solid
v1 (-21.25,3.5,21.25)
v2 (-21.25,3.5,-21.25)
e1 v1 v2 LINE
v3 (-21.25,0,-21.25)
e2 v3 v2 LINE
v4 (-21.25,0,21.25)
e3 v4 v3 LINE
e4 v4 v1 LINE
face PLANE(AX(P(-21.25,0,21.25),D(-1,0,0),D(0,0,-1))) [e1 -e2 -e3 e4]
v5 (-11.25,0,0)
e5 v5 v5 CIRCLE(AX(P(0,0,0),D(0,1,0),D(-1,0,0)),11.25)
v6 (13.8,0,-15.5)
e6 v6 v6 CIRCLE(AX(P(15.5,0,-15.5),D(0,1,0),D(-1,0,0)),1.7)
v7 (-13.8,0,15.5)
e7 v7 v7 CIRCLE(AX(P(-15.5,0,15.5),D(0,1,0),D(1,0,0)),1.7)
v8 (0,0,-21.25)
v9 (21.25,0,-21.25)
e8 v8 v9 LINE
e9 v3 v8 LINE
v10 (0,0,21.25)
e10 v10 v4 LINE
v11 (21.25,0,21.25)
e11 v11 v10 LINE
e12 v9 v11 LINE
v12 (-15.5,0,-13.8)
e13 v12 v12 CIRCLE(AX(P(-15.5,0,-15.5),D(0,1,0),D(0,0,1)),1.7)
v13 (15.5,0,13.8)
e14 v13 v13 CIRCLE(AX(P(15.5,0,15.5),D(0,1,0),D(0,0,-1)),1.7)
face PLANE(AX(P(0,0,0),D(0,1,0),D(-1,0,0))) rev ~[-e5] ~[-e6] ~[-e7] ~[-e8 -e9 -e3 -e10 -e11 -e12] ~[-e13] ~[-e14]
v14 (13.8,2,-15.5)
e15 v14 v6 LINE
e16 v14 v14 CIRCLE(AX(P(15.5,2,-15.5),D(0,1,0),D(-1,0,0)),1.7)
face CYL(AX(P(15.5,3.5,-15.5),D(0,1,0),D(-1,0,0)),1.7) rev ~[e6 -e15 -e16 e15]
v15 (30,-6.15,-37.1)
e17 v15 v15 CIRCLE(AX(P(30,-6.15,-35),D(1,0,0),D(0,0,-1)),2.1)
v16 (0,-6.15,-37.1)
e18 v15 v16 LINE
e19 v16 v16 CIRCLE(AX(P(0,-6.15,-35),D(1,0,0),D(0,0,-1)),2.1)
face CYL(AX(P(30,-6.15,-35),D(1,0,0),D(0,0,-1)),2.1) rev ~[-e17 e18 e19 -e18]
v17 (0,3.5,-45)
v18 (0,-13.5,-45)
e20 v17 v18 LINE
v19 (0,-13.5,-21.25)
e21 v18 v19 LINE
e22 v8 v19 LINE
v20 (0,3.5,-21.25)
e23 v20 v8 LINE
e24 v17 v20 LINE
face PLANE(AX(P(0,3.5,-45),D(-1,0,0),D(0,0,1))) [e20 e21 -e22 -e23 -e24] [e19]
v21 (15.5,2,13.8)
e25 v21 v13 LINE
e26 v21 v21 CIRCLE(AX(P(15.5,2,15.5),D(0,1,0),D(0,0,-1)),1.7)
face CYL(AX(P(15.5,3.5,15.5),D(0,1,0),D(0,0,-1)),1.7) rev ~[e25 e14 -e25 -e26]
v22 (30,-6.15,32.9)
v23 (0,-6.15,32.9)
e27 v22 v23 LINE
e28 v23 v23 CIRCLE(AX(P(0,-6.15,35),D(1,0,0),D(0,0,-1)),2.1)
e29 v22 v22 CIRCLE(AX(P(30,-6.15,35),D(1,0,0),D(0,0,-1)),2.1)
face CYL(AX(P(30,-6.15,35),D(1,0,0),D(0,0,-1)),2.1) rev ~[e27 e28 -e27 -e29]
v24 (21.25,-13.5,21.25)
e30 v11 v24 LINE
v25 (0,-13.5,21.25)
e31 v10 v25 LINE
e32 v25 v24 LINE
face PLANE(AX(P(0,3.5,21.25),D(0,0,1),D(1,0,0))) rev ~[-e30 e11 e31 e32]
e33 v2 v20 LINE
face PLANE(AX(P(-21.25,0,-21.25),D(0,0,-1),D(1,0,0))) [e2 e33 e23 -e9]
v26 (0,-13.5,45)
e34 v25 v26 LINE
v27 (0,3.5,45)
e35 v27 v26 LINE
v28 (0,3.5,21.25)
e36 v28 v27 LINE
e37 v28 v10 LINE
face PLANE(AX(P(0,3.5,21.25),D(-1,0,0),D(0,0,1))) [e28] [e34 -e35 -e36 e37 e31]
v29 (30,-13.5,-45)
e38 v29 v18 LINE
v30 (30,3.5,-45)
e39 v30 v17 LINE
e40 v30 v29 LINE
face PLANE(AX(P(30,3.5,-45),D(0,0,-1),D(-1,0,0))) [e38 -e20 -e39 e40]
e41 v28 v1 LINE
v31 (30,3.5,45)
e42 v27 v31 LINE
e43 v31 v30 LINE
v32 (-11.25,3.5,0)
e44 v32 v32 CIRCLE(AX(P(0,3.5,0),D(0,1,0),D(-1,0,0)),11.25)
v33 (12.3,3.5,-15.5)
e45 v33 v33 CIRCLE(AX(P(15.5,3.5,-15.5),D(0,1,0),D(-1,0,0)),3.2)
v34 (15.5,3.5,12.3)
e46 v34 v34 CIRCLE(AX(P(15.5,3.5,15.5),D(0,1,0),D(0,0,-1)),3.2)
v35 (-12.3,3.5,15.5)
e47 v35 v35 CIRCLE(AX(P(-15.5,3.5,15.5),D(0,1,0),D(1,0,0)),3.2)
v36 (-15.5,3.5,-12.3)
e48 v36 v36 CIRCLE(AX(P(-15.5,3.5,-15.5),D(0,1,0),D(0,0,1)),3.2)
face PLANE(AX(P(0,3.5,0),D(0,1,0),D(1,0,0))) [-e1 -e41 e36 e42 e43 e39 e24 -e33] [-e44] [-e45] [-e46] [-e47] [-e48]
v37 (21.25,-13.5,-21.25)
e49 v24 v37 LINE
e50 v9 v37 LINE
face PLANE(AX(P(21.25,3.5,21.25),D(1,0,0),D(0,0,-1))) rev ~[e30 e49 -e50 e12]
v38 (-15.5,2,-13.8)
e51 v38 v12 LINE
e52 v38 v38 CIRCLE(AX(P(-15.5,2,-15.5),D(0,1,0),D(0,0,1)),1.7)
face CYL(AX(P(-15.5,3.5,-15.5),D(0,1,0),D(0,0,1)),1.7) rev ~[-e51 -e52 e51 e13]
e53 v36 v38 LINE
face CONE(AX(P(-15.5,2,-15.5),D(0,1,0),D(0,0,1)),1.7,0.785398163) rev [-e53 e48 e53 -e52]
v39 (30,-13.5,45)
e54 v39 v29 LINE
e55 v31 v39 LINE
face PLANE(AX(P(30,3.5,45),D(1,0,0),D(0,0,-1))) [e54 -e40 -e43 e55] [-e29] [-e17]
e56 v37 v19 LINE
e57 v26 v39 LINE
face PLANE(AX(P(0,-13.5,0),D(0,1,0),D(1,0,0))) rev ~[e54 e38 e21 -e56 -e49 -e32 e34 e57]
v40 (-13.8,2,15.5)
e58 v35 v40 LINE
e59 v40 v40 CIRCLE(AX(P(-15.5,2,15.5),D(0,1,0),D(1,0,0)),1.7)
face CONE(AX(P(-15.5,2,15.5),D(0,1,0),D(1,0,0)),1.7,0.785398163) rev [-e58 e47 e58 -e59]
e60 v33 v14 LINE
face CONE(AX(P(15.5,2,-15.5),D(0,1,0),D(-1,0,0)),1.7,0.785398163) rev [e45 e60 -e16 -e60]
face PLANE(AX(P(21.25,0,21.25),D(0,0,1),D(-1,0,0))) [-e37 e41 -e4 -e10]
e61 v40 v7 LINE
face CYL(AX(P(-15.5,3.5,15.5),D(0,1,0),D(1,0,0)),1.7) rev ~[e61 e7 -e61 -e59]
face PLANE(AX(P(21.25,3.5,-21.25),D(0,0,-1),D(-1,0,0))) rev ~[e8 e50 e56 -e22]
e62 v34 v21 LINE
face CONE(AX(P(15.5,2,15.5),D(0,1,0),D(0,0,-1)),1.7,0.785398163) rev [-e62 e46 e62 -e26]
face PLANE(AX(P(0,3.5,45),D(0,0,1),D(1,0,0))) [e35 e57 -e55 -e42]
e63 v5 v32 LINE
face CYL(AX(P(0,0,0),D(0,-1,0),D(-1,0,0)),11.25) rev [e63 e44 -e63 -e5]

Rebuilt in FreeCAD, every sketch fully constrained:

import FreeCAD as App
import Part
import Sketcher
from FreeCAD import Vector


def edges_at(feature, points):
    """Names of the edges that pass closest to the given points."""
    edges = feature.Shape.Edges
    near = lambda p: min(range(len(edges)), key=lambda i: edges[i].distToShape(Part.Vertex(*p))[0])
    return sorted({f"Edge{near(p) + 1}" for p in points})


def add_polygon(sketch, points):
    """Adds a closed chain of lines whose ends are joined by coincident constraints."""
    first, n = sketch.GeometryCount, len(points)
    for a, b in zip(points, points[1:] + points[:1]):
        sketch.addGeometry(Part.LineSegment(App.Vector(*a, 0), App.Vector(*b, 0)), False)
    for i in range(n):
        sketch.addConstraint(Sketcher.Constraint("Coincident", first + i, 2, first + (i + 1) % n, 1))

doc = App.newDocument("Part")
body = doc.addObject("PartDesign::Body", "Body")

# Sketch on XZ plane
sketch1 = body.newObject("Sketcher::SketchObject", "Sketch")
sketch1.AttachmentSupport = (doc.getObject("XZ_Plane"), [""])
sketch1.MapMode = "FlatFace"
add_polygon(sketch1, [(-21, 21), (21, 21), (21, -21), (-21, -21)])  # lines 0-3
sketch1.addGeometry(Part.Circle(Vector(0, 0, 0), Vector(0, 0, 1), 11), False)  # 4
sketch1.addConstraint([
    Sketcher.Constraint("Horizontal", 0),
    Sketcher.Constraint("Vertical", 1),
    Sketcher.Constraint("Horizontal", 2),
    Sketcher.Constraint("Vertical", 3),
    Sketcher.Constraint("Coincident", 4, 3, -1, 1),
    Sketcher.Constraint("Symmetric", 0, 2, 2, 2, -1, 1),
    Sketcher.Constraint("Equal", 2, 1),
    Sketcher.Constraint("Diameter", 4, 22.5),
    Sketcher.Constraint("DistanceX", 0, 1, 0, 2, 42.5),
])
pad1 = body.newObject("PartDesign::Pad", "Pad")
pad1.Profile = sketch1
pad1.Length = 3.5
pad1.Reversed = True

# Sketch on XZ plane
sketch2 = body.newObject("Sketcher::SketchObject", "Sketch001")
sketch2.AttachmentSupport = (doc.getObject("XZ_Plane"), [""])
sketch2.MapMode = "FlatFace"
sketch2.AttachmentOffset = App.Placement(Vector(0, 0, -3.5), App.Rotation())
sketch2.addGeometry(Part.Circle(Vector(-15.5, 15.5, 0), Vector(0, 0, 1), 1.7), False)
sketch2.addConstraint([
    Sketcher.Constraint("Diameter", 0, 3.4),
    Sketcher.Constraint("DistanceX", 0, 3, -1, 1, 15.5),
    Sketcher.Constraint("DistanceY", -1, 1, 0, 3, 15.5),
])
pocket1 = body.newObject("PartDesign::Pocket", "Pocket")
pocket1.Profile = sketch2
pocket1.Type = "ThroughAll"
pocket1.Reversed = True
doc.recompute()

chamfer = body.newObject("PartDesign::Chamfer", "Chamfer")
chamfer.Base = (pocket1, edges_at(pocket1, [(-17.2, 3.5, 15.5)]))
chamfer.Size = 1.5
doc.recompute()

polarpattern = body.newObject("PartDesign::PolarPattern", "PolarPattern")
polarpattern.Originals = [pocket1, chamfer]
polarpattern.Axis = (doc.getObject("Y_Axis"), [""])
polarpattern.Angle = 360
polarpattern.Occurrences = 4
body.Tip = polarpattern

# Sketch on XZ plane
sketch3 = body.newObject("Sketcher::SketchObject", "Sketch002")
sketch3.AttachmentSupport = (doc.getObject("XZ_Plane"), [""])
sketch3.MapMode = "FlatFace"
sketch3.AttachmentOffset = App.Placement(Vector(0, 0, -3.5), App.Rotation())
add_polygon(sketch3, [(0, -21), (21, -21), (21, 21), (0, 21), (0, 45), (30, 45), (30, -45), (0, -45)])  # lines 0-7
sketch3.addConstraint([
    Sketcher.Constraint("Horizontal", 0),
    Sketcher.Constraint("Vertical", 1),
    Sketcher.Constraint("Horizontal", 2),
    Sketcher.Constraint("Vertical", 3),
    Sketcher.Constraint("Horizontal", 4),
    Sketcher.Constraint("Vertical", 5),
    Sketcher.Constraint("Horizontal", 6),
    Sketcher.Constraint("Vertical", 7),
    Sketcher.Constraint("Symmetric", 3, 2, 6, 2, -1, 1),
    Sketcher.Constraint("Symmetric", 2, 2, 7, 2, -1),
    Sketcher.Constraint("DistanceX", 4, 1, 4, 2, 30.0),
    Sketcher.Constraint("DistanceY", 5, 2, 5, 1, 90.0),
    Sketcher.Constraint("DistanceY", 1, 1, 1, 2, 42.5),
    Sketcher.Constraint("DistanceX", 0, 1, 0, 2, 21.25),
])
pad2 = body.newObject("PartDesign::Pad", "Pad001")
pad2.Profile = sketch3
pad2.Length = 17

# Sketch on YZ plane
sketch4 = body.newObject("Sketcher::SketchObject", "Sketch003")
sketch4.AttachmentSupport = (doc.getObject("YZ_Plane"), [""])
sketch4.MapMode = "FlatFace"
sketch4.AttachmentOffset = App.Placement(Vector(0, 0, 30), App.Rotation())
sketch4.addGeometry([
    Part.Circle(Vector(-6.2, 35, 0), Vector(0, 0, 1), 2.1),
    Part.Circle(Vector(-6.2, -35, 0), Vector(0, 0, 1), 2.1),
], False)
sketch4.addConstraint([
    Sketcher.Constraint("Equal", 0, 1),
    Sketcher.Constraint("Symmetric", 0, 3, 1, 3, -1),
    Sketcher.Constraint("Diameter", 0, 4.2),
    Sketcher.Constraint("DistanceY", -1, 1, 0, 3, 35.0),
    Sketcher.Constraint("DistanceX", 0, 3, -1, 1, 6.15),
])
pocket2 = body.newObject("PartDesign::Pocket", "Pocket001")
pocket2.Profile = sketch4
pocket2.Type = "ThroughAll"

doc.recompute()
